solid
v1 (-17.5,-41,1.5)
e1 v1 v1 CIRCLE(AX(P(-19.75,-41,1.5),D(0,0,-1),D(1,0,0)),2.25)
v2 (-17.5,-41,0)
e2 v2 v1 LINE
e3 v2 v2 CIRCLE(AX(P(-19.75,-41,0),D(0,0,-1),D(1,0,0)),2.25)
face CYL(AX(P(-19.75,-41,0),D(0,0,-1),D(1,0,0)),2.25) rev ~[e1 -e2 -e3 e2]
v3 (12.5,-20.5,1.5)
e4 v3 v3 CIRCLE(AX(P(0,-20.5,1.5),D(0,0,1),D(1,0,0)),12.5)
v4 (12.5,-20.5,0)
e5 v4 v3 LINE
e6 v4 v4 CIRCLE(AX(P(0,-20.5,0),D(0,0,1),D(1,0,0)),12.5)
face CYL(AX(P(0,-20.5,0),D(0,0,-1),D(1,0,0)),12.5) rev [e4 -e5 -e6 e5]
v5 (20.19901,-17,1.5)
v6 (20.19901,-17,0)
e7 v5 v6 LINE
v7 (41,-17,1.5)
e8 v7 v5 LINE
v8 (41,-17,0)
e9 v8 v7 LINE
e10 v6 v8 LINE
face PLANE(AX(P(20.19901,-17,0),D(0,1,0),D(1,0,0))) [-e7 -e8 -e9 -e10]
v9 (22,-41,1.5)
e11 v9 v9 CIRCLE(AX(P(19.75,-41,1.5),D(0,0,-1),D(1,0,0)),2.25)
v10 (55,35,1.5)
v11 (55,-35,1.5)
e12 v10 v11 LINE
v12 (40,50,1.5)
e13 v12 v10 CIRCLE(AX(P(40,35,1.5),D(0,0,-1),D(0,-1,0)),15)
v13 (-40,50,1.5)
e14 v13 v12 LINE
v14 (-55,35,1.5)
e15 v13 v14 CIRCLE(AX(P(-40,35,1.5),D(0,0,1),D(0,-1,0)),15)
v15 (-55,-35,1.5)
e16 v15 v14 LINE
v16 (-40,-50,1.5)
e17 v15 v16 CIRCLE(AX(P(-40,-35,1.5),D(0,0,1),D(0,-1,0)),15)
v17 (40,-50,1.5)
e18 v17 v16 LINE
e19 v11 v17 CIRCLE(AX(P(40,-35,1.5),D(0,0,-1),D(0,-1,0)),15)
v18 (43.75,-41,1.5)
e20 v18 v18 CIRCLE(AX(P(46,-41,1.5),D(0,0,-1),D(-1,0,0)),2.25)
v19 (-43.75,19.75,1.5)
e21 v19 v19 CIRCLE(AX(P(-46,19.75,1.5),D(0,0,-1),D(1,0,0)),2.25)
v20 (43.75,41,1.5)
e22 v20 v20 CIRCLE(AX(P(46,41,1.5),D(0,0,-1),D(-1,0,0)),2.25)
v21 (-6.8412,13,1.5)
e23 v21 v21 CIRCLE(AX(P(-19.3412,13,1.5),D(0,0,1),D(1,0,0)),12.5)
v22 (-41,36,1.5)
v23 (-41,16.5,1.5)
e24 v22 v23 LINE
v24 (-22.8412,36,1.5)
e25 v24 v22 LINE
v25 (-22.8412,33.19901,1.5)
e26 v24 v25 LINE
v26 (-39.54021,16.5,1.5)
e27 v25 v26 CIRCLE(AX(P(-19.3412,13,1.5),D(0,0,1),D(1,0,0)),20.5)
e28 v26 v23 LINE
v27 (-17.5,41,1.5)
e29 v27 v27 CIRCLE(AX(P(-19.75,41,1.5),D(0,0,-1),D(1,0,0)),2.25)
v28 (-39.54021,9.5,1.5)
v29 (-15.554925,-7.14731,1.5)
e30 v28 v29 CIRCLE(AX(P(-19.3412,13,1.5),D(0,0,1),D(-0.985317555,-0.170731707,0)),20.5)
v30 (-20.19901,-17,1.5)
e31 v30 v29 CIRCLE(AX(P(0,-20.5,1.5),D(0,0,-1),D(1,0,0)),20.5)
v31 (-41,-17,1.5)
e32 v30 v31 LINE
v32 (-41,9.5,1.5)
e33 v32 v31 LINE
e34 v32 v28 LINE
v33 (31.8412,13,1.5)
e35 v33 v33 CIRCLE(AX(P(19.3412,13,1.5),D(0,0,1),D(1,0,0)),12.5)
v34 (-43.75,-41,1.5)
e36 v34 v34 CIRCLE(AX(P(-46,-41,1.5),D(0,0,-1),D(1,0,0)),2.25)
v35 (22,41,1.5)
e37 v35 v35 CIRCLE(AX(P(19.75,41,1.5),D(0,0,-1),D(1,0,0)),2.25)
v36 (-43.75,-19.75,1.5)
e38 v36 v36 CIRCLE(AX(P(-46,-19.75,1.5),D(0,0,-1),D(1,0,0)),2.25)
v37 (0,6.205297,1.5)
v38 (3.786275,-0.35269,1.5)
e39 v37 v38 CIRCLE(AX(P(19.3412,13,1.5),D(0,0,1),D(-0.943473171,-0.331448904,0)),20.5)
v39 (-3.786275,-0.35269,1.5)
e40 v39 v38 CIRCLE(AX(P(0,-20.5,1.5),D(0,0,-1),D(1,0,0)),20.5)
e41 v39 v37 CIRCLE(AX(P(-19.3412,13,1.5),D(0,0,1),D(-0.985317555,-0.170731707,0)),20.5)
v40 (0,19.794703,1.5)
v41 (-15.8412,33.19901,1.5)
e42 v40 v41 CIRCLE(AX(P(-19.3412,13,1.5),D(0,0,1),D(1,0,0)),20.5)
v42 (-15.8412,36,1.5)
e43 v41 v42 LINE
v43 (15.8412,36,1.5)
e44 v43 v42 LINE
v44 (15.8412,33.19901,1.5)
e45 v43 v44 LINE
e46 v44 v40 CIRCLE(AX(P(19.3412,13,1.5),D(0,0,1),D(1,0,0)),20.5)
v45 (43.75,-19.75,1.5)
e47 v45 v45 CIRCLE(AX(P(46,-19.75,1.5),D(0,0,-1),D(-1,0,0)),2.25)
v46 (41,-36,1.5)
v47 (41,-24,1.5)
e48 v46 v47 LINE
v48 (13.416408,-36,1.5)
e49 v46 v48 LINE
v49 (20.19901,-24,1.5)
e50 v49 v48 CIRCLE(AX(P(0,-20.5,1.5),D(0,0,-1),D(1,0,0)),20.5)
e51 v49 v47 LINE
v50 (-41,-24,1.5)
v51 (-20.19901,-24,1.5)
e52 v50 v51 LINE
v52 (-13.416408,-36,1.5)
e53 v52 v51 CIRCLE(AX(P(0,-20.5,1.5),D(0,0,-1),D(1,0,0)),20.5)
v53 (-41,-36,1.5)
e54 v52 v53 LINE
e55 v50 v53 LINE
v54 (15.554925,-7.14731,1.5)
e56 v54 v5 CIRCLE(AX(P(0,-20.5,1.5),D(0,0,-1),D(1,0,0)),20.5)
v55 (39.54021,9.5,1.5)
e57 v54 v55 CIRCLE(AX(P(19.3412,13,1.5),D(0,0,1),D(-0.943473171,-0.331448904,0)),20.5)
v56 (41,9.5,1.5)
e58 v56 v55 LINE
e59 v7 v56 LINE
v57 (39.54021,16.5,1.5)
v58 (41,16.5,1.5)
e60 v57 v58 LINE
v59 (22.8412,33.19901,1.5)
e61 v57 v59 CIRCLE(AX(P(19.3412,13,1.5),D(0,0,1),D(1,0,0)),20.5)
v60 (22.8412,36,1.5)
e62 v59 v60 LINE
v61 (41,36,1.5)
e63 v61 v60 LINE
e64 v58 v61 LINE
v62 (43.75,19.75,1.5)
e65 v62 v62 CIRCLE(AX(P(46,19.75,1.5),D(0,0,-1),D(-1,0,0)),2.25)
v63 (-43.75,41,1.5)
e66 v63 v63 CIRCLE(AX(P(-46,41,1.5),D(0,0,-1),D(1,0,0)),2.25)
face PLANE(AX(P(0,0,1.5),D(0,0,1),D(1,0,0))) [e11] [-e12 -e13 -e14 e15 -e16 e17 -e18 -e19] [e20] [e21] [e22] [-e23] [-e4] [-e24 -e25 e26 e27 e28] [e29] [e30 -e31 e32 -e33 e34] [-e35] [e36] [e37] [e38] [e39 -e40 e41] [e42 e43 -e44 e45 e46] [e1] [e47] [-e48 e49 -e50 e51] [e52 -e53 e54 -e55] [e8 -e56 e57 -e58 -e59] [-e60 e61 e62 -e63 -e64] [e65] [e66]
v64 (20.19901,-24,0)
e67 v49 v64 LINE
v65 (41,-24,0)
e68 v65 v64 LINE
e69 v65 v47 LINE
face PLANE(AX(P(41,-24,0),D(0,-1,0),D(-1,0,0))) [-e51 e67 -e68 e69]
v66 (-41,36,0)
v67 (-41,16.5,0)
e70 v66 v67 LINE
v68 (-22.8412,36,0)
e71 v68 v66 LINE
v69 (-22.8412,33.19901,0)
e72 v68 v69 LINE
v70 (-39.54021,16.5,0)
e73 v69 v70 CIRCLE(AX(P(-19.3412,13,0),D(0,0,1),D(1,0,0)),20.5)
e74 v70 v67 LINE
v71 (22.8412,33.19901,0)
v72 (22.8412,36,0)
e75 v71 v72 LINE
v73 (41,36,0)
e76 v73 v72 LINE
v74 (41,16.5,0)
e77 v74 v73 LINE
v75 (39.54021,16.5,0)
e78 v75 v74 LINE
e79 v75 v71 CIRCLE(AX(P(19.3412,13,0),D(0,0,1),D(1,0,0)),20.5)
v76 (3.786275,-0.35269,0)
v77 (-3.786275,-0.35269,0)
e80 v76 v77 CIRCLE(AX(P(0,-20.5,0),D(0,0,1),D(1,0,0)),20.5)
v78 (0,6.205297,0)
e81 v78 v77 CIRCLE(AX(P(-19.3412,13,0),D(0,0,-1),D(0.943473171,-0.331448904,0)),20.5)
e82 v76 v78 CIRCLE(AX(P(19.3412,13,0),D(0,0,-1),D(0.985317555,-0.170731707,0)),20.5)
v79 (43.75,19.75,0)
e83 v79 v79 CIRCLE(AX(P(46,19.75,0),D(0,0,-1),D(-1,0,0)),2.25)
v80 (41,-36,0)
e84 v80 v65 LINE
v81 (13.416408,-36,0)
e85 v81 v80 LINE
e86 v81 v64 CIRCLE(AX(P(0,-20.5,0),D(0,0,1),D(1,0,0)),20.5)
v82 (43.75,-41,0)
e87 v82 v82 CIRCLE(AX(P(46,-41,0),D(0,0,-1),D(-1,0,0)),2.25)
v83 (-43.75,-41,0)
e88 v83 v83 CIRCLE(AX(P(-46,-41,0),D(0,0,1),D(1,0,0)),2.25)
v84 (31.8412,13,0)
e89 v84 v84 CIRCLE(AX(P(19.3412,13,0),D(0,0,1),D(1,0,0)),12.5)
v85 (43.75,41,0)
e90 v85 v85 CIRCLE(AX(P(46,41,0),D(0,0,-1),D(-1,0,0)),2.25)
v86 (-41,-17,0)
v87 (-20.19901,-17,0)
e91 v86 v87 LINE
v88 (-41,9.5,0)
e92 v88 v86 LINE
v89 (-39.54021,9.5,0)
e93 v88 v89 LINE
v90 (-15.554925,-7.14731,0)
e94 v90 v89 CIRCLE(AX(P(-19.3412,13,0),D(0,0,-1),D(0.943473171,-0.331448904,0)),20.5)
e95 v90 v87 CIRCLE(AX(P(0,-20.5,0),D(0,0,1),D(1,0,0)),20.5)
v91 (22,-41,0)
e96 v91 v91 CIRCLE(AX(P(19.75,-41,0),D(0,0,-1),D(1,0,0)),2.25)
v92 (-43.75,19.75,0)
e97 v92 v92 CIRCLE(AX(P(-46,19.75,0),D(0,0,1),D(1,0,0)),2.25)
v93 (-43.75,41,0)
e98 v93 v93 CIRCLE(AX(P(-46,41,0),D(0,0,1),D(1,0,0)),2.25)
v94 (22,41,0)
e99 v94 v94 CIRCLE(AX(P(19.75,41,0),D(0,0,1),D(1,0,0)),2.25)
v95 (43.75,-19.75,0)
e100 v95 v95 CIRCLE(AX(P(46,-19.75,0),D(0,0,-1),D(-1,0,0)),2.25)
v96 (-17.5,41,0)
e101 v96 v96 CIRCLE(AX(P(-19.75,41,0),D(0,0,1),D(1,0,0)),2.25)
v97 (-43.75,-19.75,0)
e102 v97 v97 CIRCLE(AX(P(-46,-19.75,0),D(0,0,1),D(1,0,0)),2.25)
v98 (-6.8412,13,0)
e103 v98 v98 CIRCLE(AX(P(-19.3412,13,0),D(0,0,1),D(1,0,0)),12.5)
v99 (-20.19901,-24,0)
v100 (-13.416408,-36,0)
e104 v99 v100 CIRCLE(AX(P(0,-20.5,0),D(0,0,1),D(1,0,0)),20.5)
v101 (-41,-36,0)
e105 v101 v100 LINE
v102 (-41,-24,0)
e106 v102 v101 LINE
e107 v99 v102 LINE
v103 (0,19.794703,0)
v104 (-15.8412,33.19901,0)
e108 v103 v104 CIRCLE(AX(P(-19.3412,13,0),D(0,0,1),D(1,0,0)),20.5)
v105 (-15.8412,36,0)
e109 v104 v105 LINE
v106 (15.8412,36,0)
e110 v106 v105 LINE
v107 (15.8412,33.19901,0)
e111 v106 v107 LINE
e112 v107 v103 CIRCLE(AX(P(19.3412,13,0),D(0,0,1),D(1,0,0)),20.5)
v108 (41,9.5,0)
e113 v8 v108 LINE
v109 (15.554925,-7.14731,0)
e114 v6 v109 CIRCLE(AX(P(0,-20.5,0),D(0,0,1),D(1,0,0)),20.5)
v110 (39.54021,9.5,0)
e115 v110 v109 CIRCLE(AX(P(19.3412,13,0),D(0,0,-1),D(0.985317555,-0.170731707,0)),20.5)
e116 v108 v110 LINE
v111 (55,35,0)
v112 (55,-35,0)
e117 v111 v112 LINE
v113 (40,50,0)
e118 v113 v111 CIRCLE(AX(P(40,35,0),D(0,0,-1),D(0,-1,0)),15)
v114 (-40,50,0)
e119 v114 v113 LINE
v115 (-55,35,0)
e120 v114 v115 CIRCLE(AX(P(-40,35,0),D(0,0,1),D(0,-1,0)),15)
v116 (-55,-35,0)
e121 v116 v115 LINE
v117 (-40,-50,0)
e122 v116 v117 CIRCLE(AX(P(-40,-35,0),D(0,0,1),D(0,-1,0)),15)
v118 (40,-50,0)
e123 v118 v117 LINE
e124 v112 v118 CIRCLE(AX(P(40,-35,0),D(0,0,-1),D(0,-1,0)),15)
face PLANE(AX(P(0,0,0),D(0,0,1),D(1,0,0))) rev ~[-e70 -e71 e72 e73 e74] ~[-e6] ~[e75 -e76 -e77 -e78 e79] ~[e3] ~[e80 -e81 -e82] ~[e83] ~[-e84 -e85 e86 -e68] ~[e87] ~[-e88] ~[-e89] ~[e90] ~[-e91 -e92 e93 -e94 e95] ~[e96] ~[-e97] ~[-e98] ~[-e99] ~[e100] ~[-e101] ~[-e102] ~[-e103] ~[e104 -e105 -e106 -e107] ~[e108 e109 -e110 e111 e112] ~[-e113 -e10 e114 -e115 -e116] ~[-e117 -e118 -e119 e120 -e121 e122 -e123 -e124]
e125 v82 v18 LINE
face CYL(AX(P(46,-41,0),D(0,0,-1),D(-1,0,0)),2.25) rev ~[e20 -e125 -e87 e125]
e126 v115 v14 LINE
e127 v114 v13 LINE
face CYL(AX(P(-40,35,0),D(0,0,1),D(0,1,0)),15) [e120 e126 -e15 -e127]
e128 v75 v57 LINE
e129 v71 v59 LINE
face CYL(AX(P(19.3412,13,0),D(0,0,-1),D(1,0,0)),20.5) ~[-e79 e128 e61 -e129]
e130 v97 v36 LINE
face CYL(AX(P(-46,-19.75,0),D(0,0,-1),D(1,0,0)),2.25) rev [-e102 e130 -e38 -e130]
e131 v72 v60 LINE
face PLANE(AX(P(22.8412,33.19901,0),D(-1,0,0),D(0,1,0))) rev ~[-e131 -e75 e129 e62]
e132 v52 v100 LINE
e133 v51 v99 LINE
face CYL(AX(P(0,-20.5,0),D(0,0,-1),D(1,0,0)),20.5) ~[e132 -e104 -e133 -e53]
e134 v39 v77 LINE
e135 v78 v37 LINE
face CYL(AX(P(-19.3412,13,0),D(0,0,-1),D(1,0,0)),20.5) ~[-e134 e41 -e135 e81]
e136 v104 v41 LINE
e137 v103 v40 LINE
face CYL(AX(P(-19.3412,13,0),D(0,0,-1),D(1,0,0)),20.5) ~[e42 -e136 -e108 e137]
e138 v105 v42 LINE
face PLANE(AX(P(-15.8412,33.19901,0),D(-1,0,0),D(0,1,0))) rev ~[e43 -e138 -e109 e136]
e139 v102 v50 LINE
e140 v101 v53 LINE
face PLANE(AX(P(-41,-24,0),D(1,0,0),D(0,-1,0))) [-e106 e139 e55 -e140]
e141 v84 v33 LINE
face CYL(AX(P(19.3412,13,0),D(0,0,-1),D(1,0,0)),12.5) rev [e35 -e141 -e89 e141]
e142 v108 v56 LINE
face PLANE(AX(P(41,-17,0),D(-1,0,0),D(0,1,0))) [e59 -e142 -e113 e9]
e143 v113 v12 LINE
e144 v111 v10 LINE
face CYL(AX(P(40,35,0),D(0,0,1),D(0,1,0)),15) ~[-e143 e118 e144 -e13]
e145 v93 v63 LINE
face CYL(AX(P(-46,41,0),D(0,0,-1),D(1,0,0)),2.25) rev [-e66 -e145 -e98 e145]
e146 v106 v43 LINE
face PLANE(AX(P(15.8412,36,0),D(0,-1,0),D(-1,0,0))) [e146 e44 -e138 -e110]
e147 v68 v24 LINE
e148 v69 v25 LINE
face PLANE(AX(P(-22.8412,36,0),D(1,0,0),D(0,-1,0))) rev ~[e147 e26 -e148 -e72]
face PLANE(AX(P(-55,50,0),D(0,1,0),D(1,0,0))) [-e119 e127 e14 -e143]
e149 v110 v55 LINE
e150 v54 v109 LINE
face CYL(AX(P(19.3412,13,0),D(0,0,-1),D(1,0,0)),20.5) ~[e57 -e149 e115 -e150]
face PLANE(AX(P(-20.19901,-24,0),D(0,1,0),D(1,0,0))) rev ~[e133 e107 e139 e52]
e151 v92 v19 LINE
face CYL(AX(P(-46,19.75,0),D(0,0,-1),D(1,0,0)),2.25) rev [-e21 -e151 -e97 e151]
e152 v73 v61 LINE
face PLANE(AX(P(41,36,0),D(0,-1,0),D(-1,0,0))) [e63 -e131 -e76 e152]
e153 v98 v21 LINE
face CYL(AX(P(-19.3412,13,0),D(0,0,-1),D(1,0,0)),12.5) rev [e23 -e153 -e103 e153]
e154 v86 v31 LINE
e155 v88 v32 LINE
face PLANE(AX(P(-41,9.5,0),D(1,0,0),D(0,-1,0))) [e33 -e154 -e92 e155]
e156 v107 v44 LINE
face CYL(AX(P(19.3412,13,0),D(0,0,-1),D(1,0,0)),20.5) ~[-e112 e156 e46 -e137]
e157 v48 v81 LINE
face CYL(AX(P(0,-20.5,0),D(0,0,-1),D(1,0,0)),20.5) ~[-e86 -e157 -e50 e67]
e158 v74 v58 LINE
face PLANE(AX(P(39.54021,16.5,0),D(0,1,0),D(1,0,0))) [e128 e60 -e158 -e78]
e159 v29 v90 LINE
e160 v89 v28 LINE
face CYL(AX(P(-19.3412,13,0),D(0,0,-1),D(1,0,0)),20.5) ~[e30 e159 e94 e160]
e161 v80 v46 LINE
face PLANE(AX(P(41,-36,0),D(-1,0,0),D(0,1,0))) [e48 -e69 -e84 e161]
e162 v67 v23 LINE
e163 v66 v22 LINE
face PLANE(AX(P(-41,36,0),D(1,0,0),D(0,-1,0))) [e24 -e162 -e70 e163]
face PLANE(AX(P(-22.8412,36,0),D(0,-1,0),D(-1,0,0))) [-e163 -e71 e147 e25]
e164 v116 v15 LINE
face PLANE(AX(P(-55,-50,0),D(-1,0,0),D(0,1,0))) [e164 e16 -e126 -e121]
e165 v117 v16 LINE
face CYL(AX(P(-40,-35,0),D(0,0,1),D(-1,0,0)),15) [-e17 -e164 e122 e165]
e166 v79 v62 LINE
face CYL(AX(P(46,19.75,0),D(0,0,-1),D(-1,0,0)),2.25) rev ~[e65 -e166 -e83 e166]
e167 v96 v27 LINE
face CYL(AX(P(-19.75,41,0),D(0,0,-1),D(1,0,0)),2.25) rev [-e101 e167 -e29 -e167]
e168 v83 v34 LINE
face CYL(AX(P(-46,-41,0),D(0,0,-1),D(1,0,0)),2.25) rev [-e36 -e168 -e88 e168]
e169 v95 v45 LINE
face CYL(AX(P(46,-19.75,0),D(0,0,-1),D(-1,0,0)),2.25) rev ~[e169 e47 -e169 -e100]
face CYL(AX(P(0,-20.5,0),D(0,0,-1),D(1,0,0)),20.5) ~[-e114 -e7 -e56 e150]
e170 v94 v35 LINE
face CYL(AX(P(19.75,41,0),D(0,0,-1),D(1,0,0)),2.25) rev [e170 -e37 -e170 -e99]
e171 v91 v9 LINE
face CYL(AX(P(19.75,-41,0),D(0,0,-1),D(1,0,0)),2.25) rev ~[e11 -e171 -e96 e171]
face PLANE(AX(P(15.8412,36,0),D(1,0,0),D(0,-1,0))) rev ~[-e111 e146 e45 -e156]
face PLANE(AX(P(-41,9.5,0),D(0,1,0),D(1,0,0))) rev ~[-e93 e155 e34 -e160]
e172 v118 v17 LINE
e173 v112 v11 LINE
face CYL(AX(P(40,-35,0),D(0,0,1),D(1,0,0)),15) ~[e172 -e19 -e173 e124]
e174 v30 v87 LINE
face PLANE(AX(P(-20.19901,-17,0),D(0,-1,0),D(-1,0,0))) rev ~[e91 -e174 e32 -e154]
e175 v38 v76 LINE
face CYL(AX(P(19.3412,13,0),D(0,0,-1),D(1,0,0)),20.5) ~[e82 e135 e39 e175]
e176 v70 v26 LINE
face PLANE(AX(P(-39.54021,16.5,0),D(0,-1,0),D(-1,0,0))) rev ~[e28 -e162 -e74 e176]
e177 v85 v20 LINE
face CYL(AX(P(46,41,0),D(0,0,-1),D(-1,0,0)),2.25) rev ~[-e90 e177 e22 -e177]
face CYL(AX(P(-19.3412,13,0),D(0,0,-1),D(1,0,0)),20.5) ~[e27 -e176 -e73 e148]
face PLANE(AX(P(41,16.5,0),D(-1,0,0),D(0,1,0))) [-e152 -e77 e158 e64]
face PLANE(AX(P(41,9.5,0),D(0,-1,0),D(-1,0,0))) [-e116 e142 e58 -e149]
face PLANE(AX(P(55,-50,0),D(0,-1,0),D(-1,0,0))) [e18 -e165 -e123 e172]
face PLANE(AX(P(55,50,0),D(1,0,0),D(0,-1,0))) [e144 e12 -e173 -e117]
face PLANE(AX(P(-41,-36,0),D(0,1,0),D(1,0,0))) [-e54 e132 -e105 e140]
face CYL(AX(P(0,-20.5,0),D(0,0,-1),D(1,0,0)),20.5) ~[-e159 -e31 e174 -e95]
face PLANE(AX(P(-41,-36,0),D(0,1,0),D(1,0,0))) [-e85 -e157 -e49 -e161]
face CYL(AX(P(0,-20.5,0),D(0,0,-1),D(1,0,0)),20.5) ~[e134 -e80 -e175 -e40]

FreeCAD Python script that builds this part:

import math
import FreeCAD as App
import Part
import Sketcher


def edges_at(feature, points):
    """Names of the edges that pass closest to the given points."""
    edges = feature.Shape.Edges
    near = lambda p: min(range(len(edges)), key=lambda i: edges[i].distToShape(Part.Vertex(*p))[0])
    return sorted({f"Edge{near(p) + 1}" for p in points})

doc = App.newDocument("Part")
body = doc.addObject("PartDesign::Body", "Body")

sketch1 = doc.addObject("Sketcher::SketchObject", "Sketch")
body.addObject(sketch1)
sketch1.AttachmentSupport = (doc.XY_Plane, [""])
sketch1.MapMode = "FlatFace"
sketch1.addGeometry([
    Part.LineSegment(App.Vector(55, 50, 0), App.Vector(-55, 50, 0)),
    Part.LineSegment(App.Vector(-55, 50, 0), App.Vector(-55, -50, 0)),
    Part.LineSegment(App.Vector(-55, -50, 0), App.Vector(55, -50, 0)),
    Part.LineSegment(App.Vector(55, -50, 0), App.Vector(55, 50, 0)),
    Part.LineSegment(App.Vector(22.8412, 36, 0), App.Vector(41, 36, 0)),
    Part.LineSegment(App.Vector(41, 36, 0), App.Vector(41, 16.5, 0)),
    Part.LineSegment(App.Vector(41, 16.5, 0), App.Vector(39.54021, 16.5, 0)),
    Part.ArcOfCircle(Part.Circle(App.Vector(19.3412, 13, 0), App.Vector(0, 0, 1), 20.5), math.radians(9.830365), math.radians(80.169635)),
    Part.LineSegment(App.Vector(22.8412, 33.19901, 0), App.Vector(22.8412, 36, 0)),
    Part.LineSegment(App.Vector(-15.8412, 36, 0), App.Vector(15.8412, 36, 0)),
    Part.LineSegment(App.Vector(15.8412, 36, 0), App.Vector(15.8412, 33.19901, 0)),
    Part.ArcOfCircle(Part.Circle(App.Vector(19.3412, 13, 0), App.Vector(0, 0, 1), 20.5), math.radians(99.830365), math.radians(160.643258)),
    Part.ArcOfCircle(Part.Circle(App.Vector(-19.3412, 13, 0), App.Vector(0, 0, 1), 20.5), math.radians(19.356742), math.radians(80.169635)),
    Part.LineSegment(App.Vector(-15.8412, 33.19901, 0), App.Vector(-15.8412, 36, 0)),
    Part.LineSegment(App.Vector(-41, 36, 0), App.Vector(-22.8412, 36, 0)),
    Part.LineSegment(App.Vector(-22.8412, 36, 0), App.Vector(-22.8412, 33.19901, 0)),
    Part.ArcOfCircle(Part.Circle(App.Vector(-19.3412, 13, 0), App.Vector(0, 0, 1), 20.5), math.radians(99.830365), math.radians(170.169635)),
    Part.LineSegment(App.Vector(-39.54021, 16.5, 0), App.Vector(-41, 16.5, 0)),
    Part.LineSegment(App.Vector(-41, 16.5, 0), App.Vector(-41, 36, 0)),
    Part.LineSegment(App.Vector(-41, -17, 0), App.Vector(-41, 9.5, 0)),
    Part.LineSegment(App.Vector(-41, 9.5, 0), App.Vector(-39.54021, 9.5, 0)),
    Part.ArcOfCircle(Part.Circle(App.Vector(-19.3412, 13, 0), App.Vector(0, 0, 1), 20.5), math.radians(-170.169635), math.radians(-79.35657)),
    Part.ArcOfCircle(Part.Circle(App.Vector(0, -20.5, 0), App.Vector(0, 0, 1), 20.5), math.radians(139.356483), math.radians(170.169635)),
    Part.LineSegment(App.Vector(-20.19901, -17, 0), App.Vector(-41, -17, 0)),
    Part.LineSegment(App.Vector(-41, -36, 0), App.Vector(-41, -24, 0)),
    Part.LineSegment(App.Vector(-41, -24, 0), App.Vector(-20.19901, -24, 0)),
    Part.ArcOfCircle(Part.Circle(App.Vector(0, -20.5, 0), App.Vector(0, 0, 1), 20.5), math.radians(-170.169635), math.radians(-130.878635)),
    Part.LineSegment(App.Vector(-13.416408, -36, 0), App.Vector(-41, -36, 0)),
    Part.LineSegment(App.Vector(41, -36, 0), App.Vector(13.416408, -36, 0)),
    Part.ArcOfCircle(Part.Circle(App.Vector(0, -20.5, 0), App.Vector(0, 0, 1), 20.5), math.radians(-49.121365), math.radians(-9.830365)),
    Part.LineSegment(App.Vector(20.19901, -24, 0), App.Vector(41, -24, 0)),
    Part.LineSegment(App.Vector(41, -24, 0), App.Vector(41, -36, 0)),
    Part.LineSegment(App.Vector(41, 9.5, 0), App.Vector(41, -17, 0)),
    Part.LineSegment(App.Vector(41, -17, 0), App.Vector(20.19901, -17, 0)),
    Part.ArcOfCircle(Part.Circle(App.Vector(0, -20.5, 0), App.Vector(0, 0, 1), 20.5), math.radians(9.830365), math.radians(40.643517)),
    Part.ArcOfCircle(Part.Circle(App.Vector(19.3412, 13, 0), App.Vector(0, 0, 1), 20.5), math.radians(-100.64343), math.radians(-9.830365)),
    Part.LineSegment(App.Vector(39.54021, 9.5, 0), App.Vector(41, 9.5, 0)),
    Part.Circle(App.Vector(0, -20.5, 0), App.Vector(0, 0, 1), 12.5),
    Part.ArcOfCircle(Part.Circle(App.Vector(0, -20.5, 0), App.Vector(0, 0, 1), 20.5), math.radians(79.35657), math.radians(100.64343)),
    Part.ArcOfCircle(Part.Circle(App.Vector(-19.3412, 13, 0), App.Vector(0, 0, 1), 20.5), math.radians(-40.643517), math.radians(-19.356742)),
    Part.ArcOfCircle(Part.Circle(App.Vector(19.3412, 13, 0), App.Vector(0, 0, 1), 20.5), math.radians(-160.643258), math.radians(-139.356483)),
    Part.Circle(App.Vector(19.3412, 13, 0), App.Vector(0, 0, 1), 12.5),
    Part.Circle(App.Vector(-19.3412, 13, 0), App.Vector(0, 0, 1), 12.5),
], False)
sketch1.addConstraint([
    Sketcher.Constraint("Coincident", 0, 2, 1, 1),
    Sketcher.Constraint("Coincident", 1, 2, 2, 1),
    Sketcher.Constraint("Coincident", 2, 2, 3, 1),
    Sketcher.Constraint("Coincident", 3, 2, 0, 1),
    Sketcher.Constraint("Coincident", 4, 2, 5, 1),
    Sketcher.Constraint("Coincident", 5, 2, 6, 1),
    Sketcher.Constraint("Coincident", 6, 2, 7, 1),
    Sketcher.Constraint("Coincident", 7, 2, 8, 1),
    Sketcher.Constraint("Coincident", 8, 2, 4, 1),
    Sketcher.Constraint("Coincident", 9, 2, 10, 1),
    Sketcher.Constraint("Coincident", 10, 2, 11, 1),
    Sketcher.Constraint("Coincident", 11, 2, 12, 1),
    Sketcher.Constraint("Coincident", 12, 2, 13, 1),
    Sketcher.Constraint("Coincident", 13, 2, 9, 1),
    Sketcher.Constraint("Coincident", 14, 2, 15, 1),
    Sketcher.Constraint("Coincident", 15, 2, 16, 1),
    Sketcher.Constraint("Coincident", 16, 2, 17, 1),
    Sketcher.Constraint("Coincident", 17, 2, 18, 1),
    Sketcher.Constraint("Coincident", 18, 2, 14, 1),
    Sketcher.Constraint("Coincident", 19, 2, 20, 1),
    Sketcher.Constraint("Coincident", 20, 2, 21, 1),
    Sketcher.Constraint("Coincident", 21, 2, 22, 1),
    Sketcher.Constraint("Coincident", 22, 2, 23, 1),
    Sketcher.Constraint("Coincident", 23, 2, 19, 1),
    Sketcher.Constraint("Coincident", 24, 2, 25, 1),
    Sketcher.Constraint("Coincident", 25, 2, 26, 1),
    Sketcher.Constraint("Coincident", 26, 2, 27, 1),
    Sketcher.Constraint("Coincident", 27, 2, 24, 1),
    Sketcher.Constraint("Coincident", 28, 2, 29, 1),
    Sketcher.Constraint("Coincident", 29, 2, 30, 1),
    Sketcher.Constraint("Coincident", 30, 2, 31, 1),
    Sketcher.Constraint("Coincident", 31, 2, 28, 1),
    Sketcher.Constraint("Coincident", 32, 2, 33, 1),
    Sketcher.Constraint("Coincident", 33, 2, 34, 1),
    Sketcher.Constraint("Coincident", 34, 2, 35, 1),
    Sketcher.Constraint("Coincident", 35, 2, 36, 1),
    Sketcher.Constraint("Coincident", 36, 2, 32, 1),
    Sketcher.Constraint("Coincident", 38, 2, 39, 1),
    Sketcher.Constraint("Coincident", 39, 2, 40, 1),
    Sketcher.Constraint("Coincident", 40, 2, 38, 1),
    Sketcher.Constraint("Horizontal", 0),
    Sketcher.Constraint("Vertical", 1),
    Sketcher.Constraint("Horizontal", 2),
    Sketcher.Constraint("Vertical", 3),
    Sketcher.Constraint("Horizontal", 4),
    Sketcher.Constraint("Vertical", 5),
    Sketcher.Constraint("Horizontal", 6),
    Sketcher.Constraint("Vertical", 8),
    Sketcher.Constraint("Horizontal", 9),
    Sketcher.Constraint("Vertical", 10),
    Sketcher.Constraint("Vertical", 13),
    Sketcher.Constraint("Horizontal", 14),
    Sketcher.Constraint("Vertical", 15),
    Sketcher.Constraint("Horizontal", 17),
    Sketcher.Constraint("Vertical", 18),
    Sketcher.Constraint("Vertical", 19),
    Sketcher.Constraint("Horizontal", 20),
    Sketcher.Constraint("Horizontal", 23),
    Sketcher.Constraint("Vertical", 24),
    Sketcher.Constraint("Horizontal", 25),
    Sketcher.Constraint("Horizontal", 27),
    Sketcher.Constraint("Horizontal", 28),
    Sketcher.Constraint("Horizontal", 30),
    Sketcher.Constraint("Vertical", 31),
    Sketcher.Constraint("Vertical", 32),
    Sketcher.Constraint("Horizontal", 33),
    Sketcher.Constraint("Horizontal", 36),
    Sketcher.Constraint("Coincident", 11, 3, 7, 3),
    Sketcher.Constraint("Coincident", 16, 3, 12, 3),
    Sketcher.Constraint("Coincident", 21, 3, 12, 3),
    Sketcher.Constraint("Coincident", 26, 3, 22, 3),
    Sketcher.Constraint("Coincident", 29, 3, 22, 3),
    Sketcher.Constraint("Coincident", 34, 3, 22, 3),
    Sketcher.Constraint("Coincident", 35, 3, 7, 3),
    Sketcher.Constraint("Coincident", 37, 3, 22, 3),
    Sketcher.Constraint("Coincident", 38, 3, 22, 3),
    Sketcher.Constraint("Coincident", 39, 3, 12, 3),
    Sketcher.Constraint("Coincident", 40, 3, 7, 3),
    Sketcher.Constraint("Coincident", 41, 3, 7, 3),
    Sketcher.Constraint("Coincident", 42, 3, 12, 3),
    Sketcher.Constraint("Equal", 7, 11),
    Sketcher.Constraint("Equal", 11, 12),
    Sketcher.Constraint("Equal", 12, 16),
    Sketcher.Constraint("Equal", 16, 21),
    Sketcher.Constraint("Equal", 21, 22),
    Sketcher.Constraint("Equal", 22, 26),
    Sketcher.Constraint("Equal", 26, 29),
    Sketcher.Constraint("Equal", 29, 34),
    Sketcher.Constraint("Equal", 34, 35),
    Sketcher.Constraint("Equal", 35, 38),
    Sketcher.Constraint("Equal", 38, 39),
    Sketcher.Constraint("Equal", 39, 40),
    Sketcher.Constraint("Equal", 37, 41),
    Sketcher.Constraint("Equal", 41, 42),
    Sketcher.Constraint("Symmetric", 0, 2, 2, 2, -1, 1),
    Sketcher.Constraint("Symmetric", 4, 2, 27, 2, -1, 1),
    Sketcher.Constraint("Symmetric", 18, 2, 31, 2, -1, 1),
    Sketcher.Constraint("Symmetric", 7, 3, 12, 3, -2),
    Sketcher.Constraint("Symmetric", 8, 2, 14, 2, -2),
    Sketcher.Constraint("Symmetric", 5, 2, 17, 2, -2),
    Sketcher.Constraint("Symmetric", 25, 2, 29, 2, -2),
    Sketcher.Constraint("Symmetric", 23, 2, 32, 2, -2),
    Sketcher.Constraint("Horizontal", 8, 2, 9, 2),
    Sketcher.Constraint("Horizontal", 7, 2, 10, 2),
    Sketcher.Constraint("Horizontal", 10, 2, 12, 2),
    Sketcher.Constraint("Horizontal", 20, 2, 35, 2),
    Sketcher.Constraint("Vertical", 18, 2, 19, 2),
    Sketcher.Constraint("Vertical", 16, 2, 20, 2),
    Sketcher.Constraint("Vertical", 22, 2, 25, 2),
    Sketcher.Constraint("Diameter", 37, 25.0),
    Sketcher.Constraint("DistanceX", 0, 2, 0, 1, 110.0),
    Sketcher.Constraint("DistanceY", 1, 2, 1, 1, 100.0),
    Sketcher.Constraint("DistanceX", 4, 2, 3, 2, 14.0),
    Sketcher.Constraint("DistanceY", 4, 2, 3, 2, 14.0),
    Sketcher.Constraint("DistanceY", 7, 3, 4, 2, 23.0),
    Sketcher.Constraint("DistanceX", 9, 2, 8, 2, 7.0),
    Sketcher.Constraint("DistanceY", 19, 2, 17, 2, 7.0),
    Sketcher.Constraint("DistanceY", 24, 2, 23, 2, 7.0),
    Sketcher.Constraint("Radius", 7, 20.5),
    Sketcher.Constraint("DistanceY", 24, 1, 24, 2, 12.0),
    Sketcher.Constraint("DistanceX", 12, 3, 7, 3, 38.6824),
])
pad1 = doc.addObject("PartDesign::Pad", "Pad")
body.addObject(pad1)
pad1.Profile = sketch1
pad1.Length = 1.5

sketch2 = doc.addObject("Sketcher::SketchObject", "Sketch001")
body.addObject(sketch2)
sketch2.AttachmentSupport = (doc.XY_Plane, [""])
sketch2.MapMode = "FlatFace"
sketch2.addGeometry([
    Part.Circle(App.Vector(-19.75, 41, 0), App.Vector(0, 0, 1), 2.25),
    Part.Circle(App.Vector(19.75, 41, 0), App.Vector(0, 0, 1), 2.25),
], False)
sketch2.addConstraint([
    Sketcher.Constraint("Equal", 0, 1),
    Sketcher.Constraint("Symmetric", 0, 3, 1, 3, -2),
    Sketcher.Constraint("Diameter", 0, 4.5),
    Sketcher.Constraint("DistanceY", -1, 1, 0, 3, 41.0),
    Sketcher.Constraint("DistanceX", 0, 3, 1, 3, 39.5),
])
pocket1 = doc.addObject("PartDesign::Pocket", "Pocket")
body.addObject(pocket1)
pocket1.Profile = sketch2
pocket1.Length = 10
pocket1.Reversed = True
doc.recompute()

mirrored = doc.addObject("PartDesign::Mirrored", "Mirrored")
body.addObject(mirrored)
mirrored.Originals = [pocket1]
mirrored.MirrorPlane = (doc.XZ_Plane, [""])
body.Tip = mirrored

sketch3 = doc.addObject("Sketcher::SketchObject", "Sketch002")
body.addObject(sketch3)
sketch3.AttachmentSupport = (doc.XY_Plane, [""])
sketch3.MapMode = "FlatFace"
sketch3.addGeometry([
    Part.Circle(App.Vector(-46, 41, 0), App.Vector(0, 0, 1), 2.25),
    Part.Circle(App.Vector(-46, -41, 0), App.Vector(0, 0, 1), 2.25),
    Part.Circle(App.Vector(-46, 19.75, 0), App.Vector(0, 0, 1), 2.25),
    Part.Circle(App.Vector(-46, -19.75, 0), App.Vector(0, 0, 1), 2.25),
], False)
sketch3.addConstraint([
    Sketcher.Constraint("Equal", 0, 1),
    Sketcher.Constraint("Equal", 1, 2),
    Sketcher.Constraint("Equal", 2, 3),
    Sketcher.Constraint("Symmetric", 0, 3, 1, 3, -1),
    Sketcher.Constraint("Symmetric", 2, 3, 3, 3, -1),
    Sketcher.Constraint("Vertical", 1, 3, 2, 3),
    Sketcher.Constraint("Diameter", 0, 4.5),
    Sketcher.Constraint("DistanceX", 0, 3, -1, 1, 46.0),
    Sketcher.Constraint("DistanceY", -1, 1, 0, 3, 41.0),
    Sketcher.Constraint("DistanceY", 3, 3, 2, 3, 39.5),
])
pocket2 = doc.addObject("PartDesign::Pocket", "Pocket001")
body.addObject(pocket2)
pocket2.Profile = sketch3
pocket2.Length = 10
pocket2.Reversed = True
doc.recompute()

mirrored2 = doc.addObject("PartDesign::Mirrored", "Mirrored001")
body.addObject(mirrored2)
mirrored2.Originals = [pocket2]
mirrored2.MirrorPlane = (doc.YZ_Plane, [""])
body.Tip = mirrored2

sketch4 = doc.addObject("Sketcher::SketchObject", "Sketch003")
body.addObject(sketch4)
sketch4.AttachmentSupport = (doc.XY_Plane, [""])
sketch4.MapMode = "FlatFace"
sketch4.addGeometry([
    Part.LineSegment(App.Vector(41, 16.5, 0), App.Vector(41, 36, 0)),
    Part.LineSegment(App.Vector(41, 36, 0), App.Vector(22.8412, 36, 0)),
    Part.LineSegment(App.Vector(22.8412, 36, 0), App.Vector(22.8412, 33.19901, 0)),
    Part.ArcOfCircle(Part.Circle(App.Vector(19.3412, 13, 0), App.Vector(0, 0, 1), 20.5), math.radians(9.830365), math.radians(80.169635)),
    Part.LineSegment(App.Vector(39.54021, 16.5, 0), App.Vector(41, 16.5, 0)),
    Part.LineSegment(App.Vector(15.8412, 33.19901, 0), App.Vector(15.8412, 36, 0)),
    Part.LineSegment(App.Vector(15.8412, 36, 0), App.Vector(-15.8412, 36, 0)),
    Part.LineSegment(App.Vector(-15.8412, 36, 0), App.Vector(-15.8412, 33.19901, 0)),
    Part.ArcOfCircle(Part.Circle(App.Vector(-19.3412, 13, 0), App.Vector(0, 0, 1), 20.5), math.radians(19.356742), math.radians(80.169635)),
    Part.ArcOfCircle(Part.Circle(App.Vector(19.3412, 13, 0), App.Vector(0, 0, 1), 20.5), math.radians(99.830365), math.radians(160.643258)),
    Part.LineSegment(App.Vector(41, -17, 0), App.Vector(41, 9.5, 0)),
    Part.LineSegment(App.Vector(41, 9.5, 0), App.Vector(39.54021, 9.5, 0)),
    Part.ArcOfCircle(Part.Circle(App.Vector(19.3412, 13, 0), App.Vector(0, 0, 1), 20.5), math.radians(-160.643258), math.radians(-9.830365)),
    Part.ArcOfCircle(Part.Circle(App.Vector(-19.3412, 13, 0), App.Vector(0, 0, 1), 20.5), math.radians(-170.169635), math.radians(-19.356742)),
    Part.LineSegment(App.Vector(-39.54021, 9.5, 0), App.Vector(-41, 9.5, 0)),
    Part.LineSegment(App.Vector(-41, 9.5, 0), App.Vector(-41, -17, 0)),
    Part.LineSegment(App.Vector(-41, -17, 0), App.Vector(-16.3125, -17, 0)),
    Part.LineSegment(App.Vector(-16.3125, -17, 0), App.Vector(-16.3125, -24, 0)),
    Part.LineSegment(App.Vector(-16.3125, -24, 0), App.Vector(-41, -24, 0)),
    Part.LineSegment(App.Vector(-41, -24, 0), App.Vector(-41, -36, 0)),
    Part.LineSegment(App.Vector(-41, -36, 0), App.Vector(41, -36, 0)),
    Part.LineSegment(App.Vector(41, -36, 0), App.Vector(41, -24, 0)),
    Part.LineSegment(App.Vector(41, -24, 0), App.Vector(16.0929, -24, 0)),
    Part.LineSegment(App.Vector(16.0929, -24, 0), App.Vector(16.0929, -17, 0)),
    Part.LineSegment(App.Vector(16.0929, -17, 0), App.Vector(41, -17, 0)),
    Part.Circle(App.Vector(0, -20.5, 0), App.Vector(0, 0, 1), 12.5),
    Part.LineSegment(App.Vector(-22.8412, 33.19901, 0), App.Vector(-22.8412, 36, 0)),
    Part.LineSegment(App.Vector(-22.8412, 36, 0), App.Vector(-41, 36, 0)),
    Part.LineSegment(App.Vector(-41, 36, 0), App.Vector(-41, 16.5, 0)),
    Part.LineSegment(App.Vector(-41, 16.5, 0), App.Vector(-39.54021, 16.5, 0)),
    Part.ArcOfCircle(Part.Circle(App.Vector(-19.3412, 13, 0), App.Vector(0, 0, 1), 20.5), math.radians(99.830365), math.radians(170.169635)),
], False)
sketch4.addConstraint([
    Sketcher.Constraint("Coincident", 0, 2, 1, 1),
    Sketcher.Constraint("Coincident", 1, 2, 2, 1),
    Sketcher.Constraint("Coincident", 2, 2, 3, 2),
    Sketcher.Constraint("Coincident", 3, 1, 4, 1),
    Sketcher.Constraint("Coincident", 4, 2, 0, 1),
    Sketcher.Constraint("Coincident", 5, 2, 6, 1),
    Sketcher.Constraint("Coincident", 6, 2, 7, 1),
    Sketcher.Constraint("Coincident", 7, 2, 8, 2),
    Sketcher.Constraint("Coincident", 8, 1, 9, 2),
    Sketcher.Constraint("Coincident", 9, 1, 5, 1),
    Sketcher.Constraint("Coincident", 10, 2, 11, 1),
    Sketcher.Constraint("Coincident", 11, 2, 12, 2),
    Sketcher.Constraint("Coincident", 12, 1, 13, 2),
    Sketcher.Constraint("Coincident", 13, 1, 14, 1),
    Sketcher.Constraint("Coincident", 14, 2, 15, 1),
    Sketcher.Constraint("Coincident", 15, 2, 16, 1),
    Sketcher.Constraint("Coincident", 16, 2, 17, 1),
    Sketcher.Constraint("Coincident", 17, 2, 18, 1),
    Sketcher.Constraint("Coincident", 18, 2, 19, 1),
    Sketcher.Constraint("Coincident", 19, 2, 20, 1),
    Sketcher.Constraint("Coincident", 20, 2, 21, 1),
    Sketcher.Constraint("Coincident", 21, 2, 22, 1),
    Sketcher.Constraint("Coincident", 22, 2, 23, 1),
    Sketcher.Constraint("Coincident", 23, 2, 24, 1),
    Sketcher.Constraint("Coincident", 24, 2, 10, 1),
    Sketcher.Constraint("Coincident", 26, 2, 27, 1),
    Sketcher.Constraint("Coincident", 27, 2, 28, 1),
    Sketcher.Constraint("Coincident", 28, 2, 29, 1),
    Sketcher.Constraint("Coincident", 29, 2, 30, 2),
    Sketcher.Constraint("Coincident", 30, 1, 26, 1),
    Sketcher.Constraint("Vertical", 0),
    Sketcher.Constraint("Horizontal", 1),
    Sketcher.Constraint("Vertical", 2),
    Sketcher.Constraint("Horizontal", 4),
    Sketcher.Constraint("Vertical", 5),
    Sketcher.Constraint("Horizontal", 6),
    Sketcher.Constraint("Vertical", 7),
    Sketcher.Constraint("Vertical", 10),
    Sketcher.Constraint("Horizontal", 11),
    Sketcher.Constraint("Horizontal", 14),
    Sketcher.Constraint("Vertical", 15),
    Sketcher.Constraint("Horizontal", 16),
    Sketcher.Constraint("Vertical", 17),
    Sketcher.Constraint("Horizontal", 18),
    Sketcher.Constraint("Vertical", 19),
    Sketcher.Constraint("Horizontal", 20),
    Sketcher.Constraint("Vertical", 21),
    Sketcher.Constraint("Horizontal", 22),
    Sketcher.Constraint("Vertical", 23),
    Sketcher.Constraint("Horizontal", 24),
    Sketcher.Constraint("Vertical", 26),
    Sketcher.Constraint("Horizontal", 27),
    Sketcher.Constraint("Vertical", 28),
    Sketcher.Constraint("Horizontal", 29),
    Sketcher.Constraint("Coincident", 9, 3, 3, 3),
    Sketcher.Constraint("Coincident", 12, 3, 3, 3),
    Sketcher.Constraint("Coincident", 13, 3, 8, 3),
    Sketcher.Constraint("Coincident", 30, 3, 8, 3),
    Sketcher.Constraint("Equal", 3, 8),
    Sketcher.Constraint("Equal", 8, 9),
    Sketcher.Constraint("Equal", 9, 12),
    Sketcher.Constraint("Equal", 12, 13),
    Sketcher.Constraint("Equal", 13, 30),
    Sketcher.Constraint("Symmetric", 0, 2, 19, 2, -1, 1),
    Sketcher.Constraint("Symmetric", 20, 2, 27, 2, -1, 1),
    Sketcher.Constraint("Symmetric", 3, 3, 8, 3, -2),
    Sketcher.Constraint("Symmetric", 10, 2, 14, 2, -2),
    Sketcher.Constraint("Symmetric", 18, 2, 21, 2, -2),
    Sketcher.Constraint("PointOnObject", 25, 3, -2),
    Sketcher.Constraint("Horizontal", 1, 2, 5, 2),
    Sketcher.Constraint("Horizontal", 2, 2, 7, 2),
    Sketcher.Constraint("Horizontal", 7, 2, 9, 1),
    Sketcher.Constraint("Horizontal", 16, 2, 23, 2),
    Sketcher.Constraint("Horizontal", 4, 2, 28, 2),
    Sketcher.Constraint("Horizontal", 9, 1, 30, 1),
    Sketcher.Constraint("Vertical", 4, 2, 10, 2),
    Sketcher.Constraint("Vertical", 3, 1, 11, 2),
    Sketcher.Constraint("Diameter", 25, 25.0),
    Sketcher.Constraint("DistanceY", 17, 2, 17, 1, 7.0),
    Sketcher.Constraint("DistanceY", 3, 3, 0, 2, 23.0),
    Sketcher.Constraint("DistanceX", 5, 2, 1, 2, 7.0),
    Sketcher.Constraint("DistanceY", 10, 2, 4, 2, 7.0),
    Sketcher.Constraint("Radius", 3, 20.5),
    Sketcher.Constraint("DistanceX", 20, 1, 20, 2, 82.0),
    Sketcher.Constraint("DistanceY", 19, 2, 19, 1, 12.0),
    Sketcher.Constraint("DistanceY", 10, 1, 10, 2, 26.5),
    Sketcher.Constraint("DistanceY", 25, 3, -1, 1, 20.5),
    Sketcher.Constraint("DistanceX", 8, 3, 3, 3, 38.6824),
    Sketcher.Constraint("DistanceX", 22, 2, 22, 1, 24.907),
    Sketcher.Constraint("DistanceX", 16, 1, 16, 2, 24.6875),
])
pocket3 = doc.addObject("PartDesign::Pocket", "Pocket002")
body.addObject(pocket3)
pocket3.Profile = sketch4
pocket3.Length = 10
pocket3.Reversed = True

sketch5 = doc.addObject("Sketcher::SketchObject", "Sketch004")
body.addObject(sketch5)
sketch5.AttachmentSupport = (doc.XY_Plane, [""])
sketch5.MapMode = "FlatFace"
sketch5.addGeometry([
    Part.Circle(App.Vector(0, -20.5, 0), App.Vector(0, 0, 1), 20.5),
    Part.LineSegment(App.Vector(-3.5, -36, 0), App.Vector(3.5, -36, 0)),
    Part.LineSegment(App.Vector(3.5, -36, 0), App.Vector(3.5, -36.2367, 0)),
    Part.LineSegment(App.Vector(3.5, -36.2367, 0), App.Vector(-3.5, -36.2367, 0)),
    Part.LineSegment(App.Vector(-3.5, -36.2367, 0), App.Vector(-3.5, -36, 0)),
    Part.Circle(App.Vector(0, -20.5, 0), App.Vector(0, 0, 1), 12.5),
], False)
sketch5.addConstraint([
    Sketcher.Constraint("Coincident", 1, 2, 2, 1),
    Sketcher.Constraint("Coincident", 2, 2, 3, 1),
    Sketcher.Constraint("Coincident", 3, 2, 4, 1),
    Sketcher.Constraint("Coincident", 4, 2, 1, 1),
    Sketcher.Constraint("Horizontal", 1),
    Sketcher.Constraint("Vertical", 2),
    Sketcher.Constraint("Horizontal", 3),
    Sketcher.Constraint("Vertical", 4),
    Sketcher.Constraint("Coincident", 5, 3, 0, 3),
    Sketcher.Constraint("PointOnObject", 0, 3, -2),
    Sketcher.Constraint("Diameter", 5, 25.0),
    Sketcher.Constraint("DistanceX", 1, 1, 1, 2, 7.0),
    Sketcher.Constraint("Diameter", 0, 41.0),
    Sketcher.Constraint("DistanceY", 1, 2, -1, 1, 36.0),
    Sketcher.Constraint("DistanceY", 0, 3, -1, 1, 20.5),
    Sketcher.Constraint("DistanceX", -1, 1, 1, 2, 3.5),
    Sketcher.Constraint("DistanceY", 2, 2, 2, 1, 0.2367),
])
pad2 = doc.addObject("PartDesign::Pad", "Pad001")
body.addObject(pad2)
pad2.Profile = sketch5
pad2.Length = 1.5
doc.recompute()

fillet = doc.addObject("PartDesign::Fillet", "Fillet")
body.addObject(fillet)
fillet.Base = (pad2, edges_at(pad2, [
    (-55, -50, 0.75),
    (55, -50, 0.75),
    (55, 50, 0.75),
    (-55, 50, 0.75),
]))
fillet.Radius = 15

doc.recompute()
